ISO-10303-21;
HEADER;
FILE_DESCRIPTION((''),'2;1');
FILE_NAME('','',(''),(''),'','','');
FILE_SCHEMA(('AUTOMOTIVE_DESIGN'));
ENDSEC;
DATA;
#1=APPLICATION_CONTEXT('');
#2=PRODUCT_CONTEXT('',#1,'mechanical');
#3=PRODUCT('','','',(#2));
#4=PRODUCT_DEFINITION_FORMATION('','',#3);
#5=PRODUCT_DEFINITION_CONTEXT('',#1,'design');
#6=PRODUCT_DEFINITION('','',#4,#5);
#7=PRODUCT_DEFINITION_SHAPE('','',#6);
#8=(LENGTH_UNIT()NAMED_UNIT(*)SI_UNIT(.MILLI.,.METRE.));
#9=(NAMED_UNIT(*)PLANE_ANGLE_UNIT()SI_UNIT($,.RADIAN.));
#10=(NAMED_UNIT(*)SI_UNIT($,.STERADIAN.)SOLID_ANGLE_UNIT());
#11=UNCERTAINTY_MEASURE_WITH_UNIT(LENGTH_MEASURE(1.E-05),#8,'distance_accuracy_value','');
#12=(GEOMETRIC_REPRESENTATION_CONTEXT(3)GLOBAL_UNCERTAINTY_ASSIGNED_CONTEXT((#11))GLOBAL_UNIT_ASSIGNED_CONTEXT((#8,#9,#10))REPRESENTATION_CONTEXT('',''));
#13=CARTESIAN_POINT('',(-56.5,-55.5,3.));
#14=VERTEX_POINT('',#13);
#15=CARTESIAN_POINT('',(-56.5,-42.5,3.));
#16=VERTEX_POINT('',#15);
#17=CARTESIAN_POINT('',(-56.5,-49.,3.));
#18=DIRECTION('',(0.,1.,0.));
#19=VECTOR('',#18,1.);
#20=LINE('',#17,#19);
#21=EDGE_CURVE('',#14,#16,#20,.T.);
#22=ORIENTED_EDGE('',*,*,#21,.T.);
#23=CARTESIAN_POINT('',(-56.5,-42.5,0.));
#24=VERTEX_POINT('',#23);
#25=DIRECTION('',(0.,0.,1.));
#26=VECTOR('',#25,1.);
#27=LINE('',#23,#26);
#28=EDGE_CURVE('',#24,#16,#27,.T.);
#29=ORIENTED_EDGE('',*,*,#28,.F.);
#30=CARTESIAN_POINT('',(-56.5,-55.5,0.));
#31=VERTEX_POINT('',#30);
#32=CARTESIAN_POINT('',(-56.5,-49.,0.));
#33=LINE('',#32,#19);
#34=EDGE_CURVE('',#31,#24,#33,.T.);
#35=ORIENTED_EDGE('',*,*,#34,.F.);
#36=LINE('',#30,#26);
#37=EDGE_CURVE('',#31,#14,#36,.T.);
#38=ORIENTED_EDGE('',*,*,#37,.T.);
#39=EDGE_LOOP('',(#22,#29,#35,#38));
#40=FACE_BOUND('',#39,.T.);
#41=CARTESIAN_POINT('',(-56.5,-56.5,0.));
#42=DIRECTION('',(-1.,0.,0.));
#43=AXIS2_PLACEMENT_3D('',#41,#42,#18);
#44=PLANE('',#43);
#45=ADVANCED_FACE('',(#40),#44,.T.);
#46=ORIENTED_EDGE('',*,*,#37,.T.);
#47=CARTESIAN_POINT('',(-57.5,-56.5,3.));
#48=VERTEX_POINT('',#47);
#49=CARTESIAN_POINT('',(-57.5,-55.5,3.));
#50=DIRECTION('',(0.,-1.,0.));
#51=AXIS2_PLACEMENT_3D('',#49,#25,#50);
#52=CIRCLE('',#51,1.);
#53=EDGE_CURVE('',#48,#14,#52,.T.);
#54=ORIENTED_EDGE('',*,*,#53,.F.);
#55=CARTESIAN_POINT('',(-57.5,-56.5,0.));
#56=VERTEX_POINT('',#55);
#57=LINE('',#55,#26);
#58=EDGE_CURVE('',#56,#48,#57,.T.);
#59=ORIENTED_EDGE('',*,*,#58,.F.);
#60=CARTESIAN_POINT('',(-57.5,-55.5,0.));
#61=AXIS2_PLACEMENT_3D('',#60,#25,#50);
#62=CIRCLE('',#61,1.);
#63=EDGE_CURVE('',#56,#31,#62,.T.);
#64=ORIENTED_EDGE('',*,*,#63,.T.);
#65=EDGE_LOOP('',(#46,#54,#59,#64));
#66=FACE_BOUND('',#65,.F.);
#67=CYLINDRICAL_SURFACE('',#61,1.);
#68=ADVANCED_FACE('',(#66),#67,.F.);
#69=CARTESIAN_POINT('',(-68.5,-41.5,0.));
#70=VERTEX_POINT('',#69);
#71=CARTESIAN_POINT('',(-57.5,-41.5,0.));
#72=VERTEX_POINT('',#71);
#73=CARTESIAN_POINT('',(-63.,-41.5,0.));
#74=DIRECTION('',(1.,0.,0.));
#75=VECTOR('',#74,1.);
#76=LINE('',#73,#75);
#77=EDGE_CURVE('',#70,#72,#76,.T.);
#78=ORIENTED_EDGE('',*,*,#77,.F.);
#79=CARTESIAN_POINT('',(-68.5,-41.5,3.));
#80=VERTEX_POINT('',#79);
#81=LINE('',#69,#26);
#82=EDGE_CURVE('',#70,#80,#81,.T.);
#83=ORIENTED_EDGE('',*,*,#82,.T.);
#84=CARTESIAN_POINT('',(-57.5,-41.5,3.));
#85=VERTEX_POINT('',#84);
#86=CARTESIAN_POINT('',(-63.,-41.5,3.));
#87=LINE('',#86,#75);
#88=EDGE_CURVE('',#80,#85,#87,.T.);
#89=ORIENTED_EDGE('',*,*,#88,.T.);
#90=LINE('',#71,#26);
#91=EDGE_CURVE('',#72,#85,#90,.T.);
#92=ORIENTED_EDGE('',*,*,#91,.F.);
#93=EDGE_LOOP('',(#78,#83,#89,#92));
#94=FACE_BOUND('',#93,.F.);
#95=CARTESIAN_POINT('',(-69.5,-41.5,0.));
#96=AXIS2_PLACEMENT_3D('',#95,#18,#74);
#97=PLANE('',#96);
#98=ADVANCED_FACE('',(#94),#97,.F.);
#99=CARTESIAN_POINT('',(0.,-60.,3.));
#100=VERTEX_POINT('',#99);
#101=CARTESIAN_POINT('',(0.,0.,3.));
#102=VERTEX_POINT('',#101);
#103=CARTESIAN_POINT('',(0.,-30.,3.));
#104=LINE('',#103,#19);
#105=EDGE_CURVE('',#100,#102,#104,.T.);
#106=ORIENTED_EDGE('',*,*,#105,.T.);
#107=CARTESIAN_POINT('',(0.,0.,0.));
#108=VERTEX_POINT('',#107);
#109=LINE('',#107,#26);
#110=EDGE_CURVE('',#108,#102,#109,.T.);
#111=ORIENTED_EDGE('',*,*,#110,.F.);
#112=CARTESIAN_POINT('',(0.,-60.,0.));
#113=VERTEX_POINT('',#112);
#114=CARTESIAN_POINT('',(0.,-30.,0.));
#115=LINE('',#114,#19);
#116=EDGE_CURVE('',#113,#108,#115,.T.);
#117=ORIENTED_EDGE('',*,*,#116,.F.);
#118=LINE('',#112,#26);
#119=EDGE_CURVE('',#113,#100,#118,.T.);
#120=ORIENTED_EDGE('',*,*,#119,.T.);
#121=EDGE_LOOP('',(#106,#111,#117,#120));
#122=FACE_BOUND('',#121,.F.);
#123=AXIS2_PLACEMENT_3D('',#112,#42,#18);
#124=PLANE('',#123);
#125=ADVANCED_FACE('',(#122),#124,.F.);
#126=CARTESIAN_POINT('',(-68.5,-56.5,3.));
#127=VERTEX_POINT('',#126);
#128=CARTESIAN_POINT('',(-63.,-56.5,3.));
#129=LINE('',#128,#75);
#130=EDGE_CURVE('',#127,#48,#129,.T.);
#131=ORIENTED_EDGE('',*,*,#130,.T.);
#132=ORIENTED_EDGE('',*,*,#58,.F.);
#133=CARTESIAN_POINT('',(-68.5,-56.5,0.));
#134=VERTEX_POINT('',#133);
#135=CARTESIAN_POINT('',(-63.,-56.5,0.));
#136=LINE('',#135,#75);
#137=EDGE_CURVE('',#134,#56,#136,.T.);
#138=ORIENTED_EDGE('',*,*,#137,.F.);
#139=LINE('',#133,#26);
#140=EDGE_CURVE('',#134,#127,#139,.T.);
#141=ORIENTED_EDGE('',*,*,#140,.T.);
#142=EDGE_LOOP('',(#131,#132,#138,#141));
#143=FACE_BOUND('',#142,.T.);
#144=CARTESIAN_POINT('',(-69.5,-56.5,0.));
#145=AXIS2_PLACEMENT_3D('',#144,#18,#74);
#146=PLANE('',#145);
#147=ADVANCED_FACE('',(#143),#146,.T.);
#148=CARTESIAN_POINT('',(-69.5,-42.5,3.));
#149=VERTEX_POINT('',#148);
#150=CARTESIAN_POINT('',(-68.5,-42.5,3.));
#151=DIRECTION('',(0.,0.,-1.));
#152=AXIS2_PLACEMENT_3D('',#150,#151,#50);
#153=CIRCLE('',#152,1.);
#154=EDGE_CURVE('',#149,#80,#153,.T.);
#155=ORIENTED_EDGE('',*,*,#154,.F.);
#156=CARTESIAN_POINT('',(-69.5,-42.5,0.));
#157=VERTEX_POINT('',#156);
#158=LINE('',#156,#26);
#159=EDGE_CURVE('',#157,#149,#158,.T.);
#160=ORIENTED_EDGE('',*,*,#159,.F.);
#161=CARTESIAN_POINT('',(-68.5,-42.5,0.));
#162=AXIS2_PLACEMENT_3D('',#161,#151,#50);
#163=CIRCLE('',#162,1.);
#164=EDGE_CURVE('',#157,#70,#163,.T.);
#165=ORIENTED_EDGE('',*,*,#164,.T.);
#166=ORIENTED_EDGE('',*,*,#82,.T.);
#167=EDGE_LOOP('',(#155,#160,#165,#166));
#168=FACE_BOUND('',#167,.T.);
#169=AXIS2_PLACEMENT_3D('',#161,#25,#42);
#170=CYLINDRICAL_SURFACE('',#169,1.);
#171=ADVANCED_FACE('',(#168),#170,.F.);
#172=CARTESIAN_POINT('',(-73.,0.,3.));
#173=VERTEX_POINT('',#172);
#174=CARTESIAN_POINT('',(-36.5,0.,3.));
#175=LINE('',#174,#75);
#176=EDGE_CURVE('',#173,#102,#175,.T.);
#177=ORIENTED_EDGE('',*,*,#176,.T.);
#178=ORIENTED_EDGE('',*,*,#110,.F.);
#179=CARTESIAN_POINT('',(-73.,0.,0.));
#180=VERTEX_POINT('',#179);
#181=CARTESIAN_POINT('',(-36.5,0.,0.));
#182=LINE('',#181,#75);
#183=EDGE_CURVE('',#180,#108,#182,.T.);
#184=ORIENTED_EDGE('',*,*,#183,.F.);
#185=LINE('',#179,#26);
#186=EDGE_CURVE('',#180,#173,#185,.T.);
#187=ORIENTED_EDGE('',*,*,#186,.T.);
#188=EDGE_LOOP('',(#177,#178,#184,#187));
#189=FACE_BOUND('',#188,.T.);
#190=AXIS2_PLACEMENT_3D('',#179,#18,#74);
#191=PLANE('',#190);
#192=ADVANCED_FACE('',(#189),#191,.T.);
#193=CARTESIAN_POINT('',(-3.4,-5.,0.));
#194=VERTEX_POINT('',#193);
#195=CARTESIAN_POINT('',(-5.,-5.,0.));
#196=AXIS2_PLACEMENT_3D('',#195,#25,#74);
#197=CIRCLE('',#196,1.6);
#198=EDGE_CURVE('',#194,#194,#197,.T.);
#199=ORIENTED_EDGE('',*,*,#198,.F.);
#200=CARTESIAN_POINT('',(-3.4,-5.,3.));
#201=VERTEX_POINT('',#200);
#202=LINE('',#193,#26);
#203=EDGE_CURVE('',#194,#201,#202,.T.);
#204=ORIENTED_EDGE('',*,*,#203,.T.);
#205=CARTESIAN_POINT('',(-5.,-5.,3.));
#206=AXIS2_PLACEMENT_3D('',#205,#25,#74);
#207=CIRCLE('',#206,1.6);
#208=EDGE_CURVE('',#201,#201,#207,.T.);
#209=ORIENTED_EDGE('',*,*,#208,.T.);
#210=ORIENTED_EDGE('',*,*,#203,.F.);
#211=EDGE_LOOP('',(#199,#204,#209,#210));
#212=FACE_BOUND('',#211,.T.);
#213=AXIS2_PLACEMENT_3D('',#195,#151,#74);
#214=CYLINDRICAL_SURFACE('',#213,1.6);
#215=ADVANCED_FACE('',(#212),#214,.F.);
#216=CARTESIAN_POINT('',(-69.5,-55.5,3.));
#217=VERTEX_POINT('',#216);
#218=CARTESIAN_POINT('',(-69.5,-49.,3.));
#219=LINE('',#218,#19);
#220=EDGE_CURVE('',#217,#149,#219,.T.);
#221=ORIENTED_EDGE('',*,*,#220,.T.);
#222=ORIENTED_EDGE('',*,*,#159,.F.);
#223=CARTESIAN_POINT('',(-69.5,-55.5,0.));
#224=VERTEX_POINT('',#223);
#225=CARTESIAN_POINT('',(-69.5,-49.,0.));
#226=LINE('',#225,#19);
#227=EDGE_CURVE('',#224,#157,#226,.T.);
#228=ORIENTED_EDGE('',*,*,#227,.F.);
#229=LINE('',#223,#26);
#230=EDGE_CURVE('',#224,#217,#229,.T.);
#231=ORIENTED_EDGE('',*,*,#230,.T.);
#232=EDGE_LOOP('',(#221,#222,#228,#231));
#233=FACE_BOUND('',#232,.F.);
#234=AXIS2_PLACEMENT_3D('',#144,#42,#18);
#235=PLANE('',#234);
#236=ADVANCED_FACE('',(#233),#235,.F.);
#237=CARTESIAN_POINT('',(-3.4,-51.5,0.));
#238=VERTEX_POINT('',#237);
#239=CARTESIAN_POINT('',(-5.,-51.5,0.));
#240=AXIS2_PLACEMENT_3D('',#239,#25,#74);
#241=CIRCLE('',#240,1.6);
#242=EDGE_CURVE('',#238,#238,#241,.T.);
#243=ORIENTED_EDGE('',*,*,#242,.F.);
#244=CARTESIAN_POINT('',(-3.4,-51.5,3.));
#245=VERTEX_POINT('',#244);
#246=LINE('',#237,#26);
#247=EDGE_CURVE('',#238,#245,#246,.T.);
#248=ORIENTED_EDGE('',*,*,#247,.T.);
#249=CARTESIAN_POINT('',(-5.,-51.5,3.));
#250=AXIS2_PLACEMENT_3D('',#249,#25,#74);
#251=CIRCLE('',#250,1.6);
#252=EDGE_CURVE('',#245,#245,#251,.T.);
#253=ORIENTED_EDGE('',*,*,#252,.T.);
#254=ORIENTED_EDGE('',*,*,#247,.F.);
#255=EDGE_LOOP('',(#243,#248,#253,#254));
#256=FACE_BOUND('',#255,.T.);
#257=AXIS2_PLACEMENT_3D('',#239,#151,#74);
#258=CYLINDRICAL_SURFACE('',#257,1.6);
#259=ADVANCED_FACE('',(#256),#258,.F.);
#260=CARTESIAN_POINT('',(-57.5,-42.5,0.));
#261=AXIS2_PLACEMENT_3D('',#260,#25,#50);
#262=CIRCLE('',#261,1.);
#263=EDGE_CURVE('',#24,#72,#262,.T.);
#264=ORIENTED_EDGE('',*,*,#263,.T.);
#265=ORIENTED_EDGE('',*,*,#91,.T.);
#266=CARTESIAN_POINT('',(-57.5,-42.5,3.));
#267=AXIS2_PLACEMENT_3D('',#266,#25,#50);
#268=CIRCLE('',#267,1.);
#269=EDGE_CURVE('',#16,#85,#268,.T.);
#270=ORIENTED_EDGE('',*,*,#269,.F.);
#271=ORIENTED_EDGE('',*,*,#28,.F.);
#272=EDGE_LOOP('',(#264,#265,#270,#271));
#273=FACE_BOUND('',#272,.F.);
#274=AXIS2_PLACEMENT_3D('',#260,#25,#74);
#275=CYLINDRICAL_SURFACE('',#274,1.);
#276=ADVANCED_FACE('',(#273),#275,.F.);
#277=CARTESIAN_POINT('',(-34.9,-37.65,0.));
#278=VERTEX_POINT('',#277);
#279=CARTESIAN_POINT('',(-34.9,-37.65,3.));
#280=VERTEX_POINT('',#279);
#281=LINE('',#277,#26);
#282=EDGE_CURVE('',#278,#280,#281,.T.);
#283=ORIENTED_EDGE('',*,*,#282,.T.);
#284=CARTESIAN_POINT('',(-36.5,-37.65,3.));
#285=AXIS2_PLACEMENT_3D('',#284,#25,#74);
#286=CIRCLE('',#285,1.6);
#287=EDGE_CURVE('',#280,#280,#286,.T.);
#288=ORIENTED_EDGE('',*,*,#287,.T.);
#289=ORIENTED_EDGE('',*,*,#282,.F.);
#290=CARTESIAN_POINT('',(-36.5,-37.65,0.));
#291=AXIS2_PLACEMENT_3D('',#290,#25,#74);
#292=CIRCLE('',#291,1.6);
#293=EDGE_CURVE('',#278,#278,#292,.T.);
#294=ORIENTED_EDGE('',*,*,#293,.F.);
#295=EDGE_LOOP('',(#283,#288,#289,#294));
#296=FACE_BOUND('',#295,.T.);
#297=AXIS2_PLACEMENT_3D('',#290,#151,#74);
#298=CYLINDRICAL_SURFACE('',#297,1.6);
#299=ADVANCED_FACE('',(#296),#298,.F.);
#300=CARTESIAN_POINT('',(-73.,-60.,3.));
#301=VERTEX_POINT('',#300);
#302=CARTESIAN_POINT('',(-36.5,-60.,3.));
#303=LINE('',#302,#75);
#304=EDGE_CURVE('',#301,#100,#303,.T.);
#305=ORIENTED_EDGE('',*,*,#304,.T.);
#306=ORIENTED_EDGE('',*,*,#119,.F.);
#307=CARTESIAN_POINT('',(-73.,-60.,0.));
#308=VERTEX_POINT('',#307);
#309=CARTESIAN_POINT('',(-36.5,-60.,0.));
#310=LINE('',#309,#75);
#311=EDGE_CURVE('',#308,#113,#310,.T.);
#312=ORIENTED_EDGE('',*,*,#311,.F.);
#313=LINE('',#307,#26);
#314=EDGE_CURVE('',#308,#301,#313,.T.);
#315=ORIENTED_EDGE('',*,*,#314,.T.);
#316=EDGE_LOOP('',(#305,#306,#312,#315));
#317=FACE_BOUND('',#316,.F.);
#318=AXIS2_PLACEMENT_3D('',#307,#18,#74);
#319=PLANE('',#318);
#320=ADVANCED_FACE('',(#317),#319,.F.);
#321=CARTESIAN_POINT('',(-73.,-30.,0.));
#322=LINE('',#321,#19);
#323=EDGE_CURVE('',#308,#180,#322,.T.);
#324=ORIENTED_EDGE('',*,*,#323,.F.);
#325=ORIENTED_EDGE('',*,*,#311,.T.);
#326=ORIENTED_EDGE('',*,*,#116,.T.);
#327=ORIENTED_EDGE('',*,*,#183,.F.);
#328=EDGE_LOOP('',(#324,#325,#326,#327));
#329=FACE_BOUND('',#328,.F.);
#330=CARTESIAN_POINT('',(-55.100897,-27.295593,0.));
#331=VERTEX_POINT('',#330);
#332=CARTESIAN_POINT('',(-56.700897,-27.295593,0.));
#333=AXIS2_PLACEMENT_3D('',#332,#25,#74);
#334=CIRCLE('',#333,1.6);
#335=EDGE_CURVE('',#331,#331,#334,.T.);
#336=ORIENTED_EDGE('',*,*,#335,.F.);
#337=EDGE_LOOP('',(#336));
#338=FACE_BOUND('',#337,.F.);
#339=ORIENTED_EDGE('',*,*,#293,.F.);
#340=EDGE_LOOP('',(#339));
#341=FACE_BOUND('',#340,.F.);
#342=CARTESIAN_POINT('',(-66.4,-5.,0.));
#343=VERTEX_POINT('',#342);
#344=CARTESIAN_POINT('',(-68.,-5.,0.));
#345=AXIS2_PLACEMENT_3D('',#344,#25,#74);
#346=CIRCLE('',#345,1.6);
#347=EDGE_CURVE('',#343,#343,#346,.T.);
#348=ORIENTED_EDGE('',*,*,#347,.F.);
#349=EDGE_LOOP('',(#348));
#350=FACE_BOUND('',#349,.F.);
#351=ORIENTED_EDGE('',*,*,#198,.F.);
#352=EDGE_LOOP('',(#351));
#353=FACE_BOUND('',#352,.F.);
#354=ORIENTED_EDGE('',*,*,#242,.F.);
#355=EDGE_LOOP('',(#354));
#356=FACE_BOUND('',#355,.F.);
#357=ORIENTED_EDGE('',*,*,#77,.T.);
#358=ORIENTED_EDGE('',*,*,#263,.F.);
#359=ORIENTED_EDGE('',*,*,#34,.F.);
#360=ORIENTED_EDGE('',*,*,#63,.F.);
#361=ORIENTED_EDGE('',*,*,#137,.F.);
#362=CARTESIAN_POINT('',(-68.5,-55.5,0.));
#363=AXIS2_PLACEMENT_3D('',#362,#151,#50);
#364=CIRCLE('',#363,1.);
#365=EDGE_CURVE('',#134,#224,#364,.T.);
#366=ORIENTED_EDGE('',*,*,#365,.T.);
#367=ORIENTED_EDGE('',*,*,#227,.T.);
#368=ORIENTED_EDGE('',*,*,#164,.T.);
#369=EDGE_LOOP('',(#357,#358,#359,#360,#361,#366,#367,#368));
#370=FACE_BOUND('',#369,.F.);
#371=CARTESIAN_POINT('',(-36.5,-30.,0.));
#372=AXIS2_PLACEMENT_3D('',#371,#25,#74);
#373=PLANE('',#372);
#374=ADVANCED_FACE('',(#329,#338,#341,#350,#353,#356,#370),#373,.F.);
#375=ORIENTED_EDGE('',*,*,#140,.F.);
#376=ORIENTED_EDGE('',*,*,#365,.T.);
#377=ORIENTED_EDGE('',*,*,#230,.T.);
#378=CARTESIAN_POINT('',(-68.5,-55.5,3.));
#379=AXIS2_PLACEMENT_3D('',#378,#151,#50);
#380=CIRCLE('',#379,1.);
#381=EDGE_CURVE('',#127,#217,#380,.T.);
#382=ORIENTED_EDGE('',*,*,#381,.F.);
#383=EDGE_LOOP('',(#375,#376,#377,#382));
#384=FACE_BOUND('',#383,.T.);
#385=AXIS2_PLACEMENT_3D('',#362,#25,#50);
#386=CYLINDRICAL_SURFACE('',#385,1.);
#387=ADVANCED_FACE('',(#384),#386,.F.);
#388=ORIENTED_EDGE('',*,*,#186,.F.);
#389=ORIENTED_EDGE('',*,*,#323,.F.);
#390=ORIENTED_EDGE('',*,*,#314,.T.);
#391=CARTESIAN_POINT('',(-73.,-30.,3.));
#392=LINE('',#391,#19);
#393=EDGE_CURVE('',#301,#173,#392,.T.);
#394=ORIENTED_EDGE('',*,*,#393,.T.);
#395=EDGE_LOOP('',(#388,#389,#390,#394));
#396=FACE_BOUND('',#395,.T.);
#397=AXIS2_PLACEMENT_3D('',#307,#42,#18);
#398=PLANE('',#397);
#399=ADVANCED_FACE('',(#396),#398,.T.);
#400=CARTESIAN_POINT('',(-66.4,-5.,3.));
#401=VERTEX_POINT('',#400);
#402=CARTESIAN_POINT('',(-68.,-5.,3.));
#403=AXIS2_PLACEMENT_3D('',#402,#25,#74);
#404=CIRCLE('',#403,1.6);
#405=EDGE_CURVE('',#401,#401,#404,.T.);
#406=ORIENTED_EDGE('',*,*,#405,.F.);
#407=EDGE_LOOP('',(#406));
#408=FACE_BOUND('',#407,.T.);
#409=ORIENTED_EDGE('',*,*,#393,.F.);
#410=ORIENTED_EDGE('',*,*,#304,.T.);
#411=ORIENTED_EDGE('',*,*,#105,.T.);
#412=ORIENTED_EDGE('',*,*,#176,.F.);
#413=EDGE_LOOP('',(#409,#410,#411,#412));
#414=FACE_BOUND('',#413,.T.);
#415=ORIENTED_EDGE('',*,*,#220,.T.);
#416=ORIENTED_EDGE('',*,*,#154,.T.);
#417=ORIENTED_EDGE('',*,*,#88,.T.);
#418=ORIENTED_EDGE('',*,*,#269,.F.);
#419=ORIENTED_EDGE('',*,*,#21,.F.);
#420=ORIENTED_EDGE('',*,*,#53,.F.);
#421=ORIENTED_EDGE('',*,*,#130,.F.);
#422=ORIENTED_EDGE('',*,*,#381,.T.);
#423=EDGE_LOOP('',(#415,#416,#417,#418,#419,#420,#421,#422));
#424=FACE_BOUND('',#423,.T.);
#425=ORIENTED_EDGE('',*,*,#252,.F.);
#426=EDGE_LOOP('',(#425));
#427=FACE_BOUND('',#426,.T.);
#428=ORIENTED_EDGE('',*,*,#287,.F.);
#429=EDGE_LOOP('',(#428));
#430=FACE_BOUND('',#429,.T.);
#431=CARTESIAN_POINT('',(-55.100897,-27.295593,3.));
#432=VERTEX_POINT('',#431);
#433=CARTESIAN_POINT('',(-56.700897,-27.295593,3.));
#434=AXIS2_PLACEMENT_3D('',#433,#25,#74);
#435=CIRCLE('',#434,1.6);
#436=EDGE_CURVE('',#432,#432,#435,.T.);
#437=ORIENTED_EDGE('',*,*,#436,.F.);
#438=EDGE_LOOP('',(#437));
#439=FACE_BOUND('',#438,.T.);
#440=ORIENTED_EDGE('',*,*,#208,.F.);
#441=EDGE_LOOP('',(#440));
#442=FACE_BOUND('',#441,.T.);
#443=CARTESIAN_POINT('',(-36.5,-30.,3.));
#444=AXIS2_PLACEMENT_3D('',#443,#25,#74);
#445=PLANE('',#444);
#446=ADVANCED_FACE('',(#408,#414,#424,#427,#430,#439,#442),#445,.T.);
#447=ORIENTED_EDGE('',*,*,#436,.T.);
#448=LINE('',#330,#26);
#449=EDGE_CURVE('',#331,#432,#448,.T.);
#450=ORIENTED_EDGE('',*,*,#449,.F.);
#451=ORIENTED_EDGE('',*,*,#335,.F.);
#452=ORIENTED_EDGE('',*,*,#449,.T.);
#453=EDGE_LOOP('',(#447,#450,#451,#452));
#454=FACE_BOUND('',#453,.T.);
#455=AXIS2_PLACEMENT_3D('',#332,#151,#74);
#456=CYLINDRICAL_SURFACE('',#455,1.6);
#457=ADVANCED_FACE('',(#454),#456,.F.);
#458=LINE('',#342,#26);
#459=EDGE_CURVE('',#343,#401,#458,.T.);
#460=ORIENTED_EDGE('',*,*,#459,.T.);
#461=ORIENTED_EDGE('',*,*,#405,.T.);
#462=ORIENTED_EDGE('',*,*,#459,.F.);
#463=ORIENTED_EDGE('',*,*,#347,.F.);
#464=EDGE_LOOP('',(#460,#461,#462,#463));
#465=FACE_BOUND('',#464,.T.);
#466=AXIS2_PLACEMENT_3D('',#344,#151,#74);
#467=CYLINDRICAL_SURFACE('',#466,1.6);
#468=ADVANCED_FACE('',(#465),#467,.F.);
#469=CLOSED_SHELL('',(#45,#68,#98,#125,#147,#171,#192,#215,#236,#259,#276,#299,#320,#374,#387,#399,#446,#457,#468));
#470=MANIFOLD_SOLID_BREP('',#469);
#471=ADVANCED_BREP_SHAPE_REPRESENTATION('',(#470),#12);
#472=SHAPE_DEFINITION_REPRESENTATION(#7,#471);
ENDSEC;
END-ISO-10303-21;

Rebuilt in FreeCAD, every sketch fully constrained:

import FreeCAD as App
import Part
import Sketcher


def edges_at(feature, points):
    """Names of the edges that pass closest to the given points."""
    edges = feature.Shape.Edges
    near = lambda p: min(range(len(edges)), key=lambda i: edges[i].distToShape(Part.Vertex(*p))[0])
    return sorted({f"Edge{near(p) + 1}" for p in points})

doc = App.newDocument("Part")
params = doc.addObject("Spreadsheet::Sheet", "Params")
for row, (alias, value) in enumerate([
    ("sketch1_diameter", "3.2 mm"),
    ("sketch1_width", "73 mm"),
    ("sketch1_width2", "13 mm"),
    ("sketch1_height", "60 mm"),
    ("sketch1_height2", "15 mm"),
    ("pad1_length", "3 mm"),
    ("fillet_radius", "1 mm"),
], start=1):
    params.set(f"A{row}", alias)
    params.set(f"B{row}", "=" + value)
    params.setAlias(f"B{row}", alias)

body = doc.addObject("PartDesign::Body", "Body")

sketch1 = body.newObject("Sketcher::SketchObject", "Sketch")
sketch1.AttachmentSupport = (doc.getObject("XY_Plane"), [""])
sketch1.MapMode = "FlatFace"
sketch1.addGeometry([
    Part.LineSegment(App.Vector(-73, 0, 0), App.Vector(-73, -60, 0)),
    Part.LineSegment(App.Vector(-73, -60, 0), App.Vector(0, -60, 0)),
    Part.LineSegment(App.Vector(0, -60, 0), App.Vector(0, 0, 0)),
    Part.LineSegment(App.Vector(0, 0, 0), App.Vector(-73, 0, 0)),
    Part.LineSegment(App.Vector(-56.5, -56.5, 0), App.Vector(-69.5, -56.5, 0)),
    Part.LineSegment(App.Vector(-69.5, -56.5, 0), App.Vector(-69.5, -41.5, 0)),
    Part.LineSegment(App.Vector(-69.5, -41.5, 0), App.Vector(-56.5, -41.5, 0)),
    Part.LineSegment(App.Vector(-56.5, -41.5, 0), App.Vector(-56.5, -56.5, 0)),
    Part.Circle(App.Vector(-5, -51.5, 0), App.Vector(0, 0, 1), 1.6),
    Part.Circle(App.Vector(-36.5, -37.6, 0), App.Vector(0, 0, 1), 1.6),
    Part.Circle(App.Vector(-56.7, -27.3, 0), App.Vector(0, 0, 1), 1.6),
    Part.Circle(App.Vector(-68, -5, 0), App.Vector(0, 0, 1), 1.6),
    Part.Circle(App.Vector(-5, -5, 0), App.Vector(0, 0, 1), 1.6),
], False)
sketch1.addConstraint([
    Sketcher.Constraint("Coincident", 0, 2, 1, 1),
    Sketcher.Constraint("Coincident", 1, 2, 2, 1),
    Sketcher.Constraint("Coincident", 2, 2, 3, 1),
    Sketcher.Constraint("Coincident", 3, 2, 0, 1),
    Sketcher.Constraint("Coincident", 4, 2, 5, 1),
    Sketcher.Constraint("Coincident", 5, 2, 6, 1),
    Sketcher.Constraint("Coincident", 6, 2, 7, 1),
    Sketcher.Constraint("Coincident", 7, 2, 4, 1),
    Sketcher.Constraint("Vertical", 0),
    Sketcher.Constraint("Horizontal", 1),
    Sketcher.Constraint("Vertical", 2),
    Sketcher.Constraint("Horizontal", 3),
    Sketcher.Constraint("Horizontal", 4),
    Sketcher.Constraint("Vertical", 5),
    Sketcher.Constraint("Horizontal", 6),
    Sketcher.Constraint("Vertical", 7),
    Sketcher.Constraint("Coincident", 2, 2, -1, 1),
    Sketcher.Constraint("Equal", 8, 9),
    Sketcher.Constraint("Equal", 9, 10),
    Sketcher.Constraint("Equal", 10, 11),
    Sketcher.Constraint("Equal", 11, 12),
    Sketcher.Constraint("Horizontal", 11, 3, 12, 3),
    Sketcher.Constraint("Vertical", 8, 3, 12, 3),
    Sketcher.Constraint("Diameter", 8, 3.2),
    Sketcher.Constraint("DistanceX", 1, 1, 1, 2, 73.0),
    Sketcher.Constraint("DistanceX", 4, 2, 4, 1, 13.0),
    Sketcher.Constraint("DistanceY", 0, 2, 0, 1, 60.0),
    Sketcher.Constraint("DistanceY", 5, 1, 5, 2, 15.0),
    Sketcher.Constraint("DistanceX", 8, 3, -1, 1, 5.0),
    Sketcher.Constraint("DistanceX", 11, 3, -1, 1, 68.0),
    Sketcher.Constraint("DistanceY", 11, 3, -1, 1, 5.0),
    Sketcher.Constraint("DistanceX", 4, 2, 9, 3, 33.0),
    Sketcher.Constraint("DistanceY", 8, 3, -1, 1, 51.5),
    Sketcher.Constraint("DistanceX", 9, 3, -1, 1, 36.5),
    Sketcher.Constraint("DistanceY", 4, 2, -1, 1, 56.5),
    Sketcher.Constraint("DistanceY", 9, 3, -1, 1, 37.65),
    Sketcher.Constraint("DistanceX", 10, 3, -1, 1, 56.700897),
    Sketcher.Constraint("DistanceY", 10, 3, -1, 1, 27.295593),
])
sketch1.setExpression("Constraints[23]", "Params.sketch1_diameter")
sketch1.setExpression("Constraints[24]", "Params.sketch1_width")
sketch1.setExpression("Constraints[25]", "Params.sketch1_width2")
sketch1.setExpression("Constraints[26]", "Params.sketch1_height")
sketch1.setExpression("Constraints[27]", "Params.sketch1_height2")
pad1 = body.newObject("PartDesign::Pad", "Pad")
pad1.Profile = sketch1
pad1.setExpression("Length", "Params.pad1_length")
doc.recompute()

fillet = body.newObject("PartDesign::Fillet", "Fillet")
fillet.Base = (pad1, edges_at(pad1, [
    (-69.5, -41.5, 1.5),
    (-56.5, -56.5, 1.5),
    (-69.5, -56.5, 1.5),
    (-56.5, -41.5, 1.5),
]))
fillet.setExpression("Radius", "Params.fillet_radius")

doc.recompute()
